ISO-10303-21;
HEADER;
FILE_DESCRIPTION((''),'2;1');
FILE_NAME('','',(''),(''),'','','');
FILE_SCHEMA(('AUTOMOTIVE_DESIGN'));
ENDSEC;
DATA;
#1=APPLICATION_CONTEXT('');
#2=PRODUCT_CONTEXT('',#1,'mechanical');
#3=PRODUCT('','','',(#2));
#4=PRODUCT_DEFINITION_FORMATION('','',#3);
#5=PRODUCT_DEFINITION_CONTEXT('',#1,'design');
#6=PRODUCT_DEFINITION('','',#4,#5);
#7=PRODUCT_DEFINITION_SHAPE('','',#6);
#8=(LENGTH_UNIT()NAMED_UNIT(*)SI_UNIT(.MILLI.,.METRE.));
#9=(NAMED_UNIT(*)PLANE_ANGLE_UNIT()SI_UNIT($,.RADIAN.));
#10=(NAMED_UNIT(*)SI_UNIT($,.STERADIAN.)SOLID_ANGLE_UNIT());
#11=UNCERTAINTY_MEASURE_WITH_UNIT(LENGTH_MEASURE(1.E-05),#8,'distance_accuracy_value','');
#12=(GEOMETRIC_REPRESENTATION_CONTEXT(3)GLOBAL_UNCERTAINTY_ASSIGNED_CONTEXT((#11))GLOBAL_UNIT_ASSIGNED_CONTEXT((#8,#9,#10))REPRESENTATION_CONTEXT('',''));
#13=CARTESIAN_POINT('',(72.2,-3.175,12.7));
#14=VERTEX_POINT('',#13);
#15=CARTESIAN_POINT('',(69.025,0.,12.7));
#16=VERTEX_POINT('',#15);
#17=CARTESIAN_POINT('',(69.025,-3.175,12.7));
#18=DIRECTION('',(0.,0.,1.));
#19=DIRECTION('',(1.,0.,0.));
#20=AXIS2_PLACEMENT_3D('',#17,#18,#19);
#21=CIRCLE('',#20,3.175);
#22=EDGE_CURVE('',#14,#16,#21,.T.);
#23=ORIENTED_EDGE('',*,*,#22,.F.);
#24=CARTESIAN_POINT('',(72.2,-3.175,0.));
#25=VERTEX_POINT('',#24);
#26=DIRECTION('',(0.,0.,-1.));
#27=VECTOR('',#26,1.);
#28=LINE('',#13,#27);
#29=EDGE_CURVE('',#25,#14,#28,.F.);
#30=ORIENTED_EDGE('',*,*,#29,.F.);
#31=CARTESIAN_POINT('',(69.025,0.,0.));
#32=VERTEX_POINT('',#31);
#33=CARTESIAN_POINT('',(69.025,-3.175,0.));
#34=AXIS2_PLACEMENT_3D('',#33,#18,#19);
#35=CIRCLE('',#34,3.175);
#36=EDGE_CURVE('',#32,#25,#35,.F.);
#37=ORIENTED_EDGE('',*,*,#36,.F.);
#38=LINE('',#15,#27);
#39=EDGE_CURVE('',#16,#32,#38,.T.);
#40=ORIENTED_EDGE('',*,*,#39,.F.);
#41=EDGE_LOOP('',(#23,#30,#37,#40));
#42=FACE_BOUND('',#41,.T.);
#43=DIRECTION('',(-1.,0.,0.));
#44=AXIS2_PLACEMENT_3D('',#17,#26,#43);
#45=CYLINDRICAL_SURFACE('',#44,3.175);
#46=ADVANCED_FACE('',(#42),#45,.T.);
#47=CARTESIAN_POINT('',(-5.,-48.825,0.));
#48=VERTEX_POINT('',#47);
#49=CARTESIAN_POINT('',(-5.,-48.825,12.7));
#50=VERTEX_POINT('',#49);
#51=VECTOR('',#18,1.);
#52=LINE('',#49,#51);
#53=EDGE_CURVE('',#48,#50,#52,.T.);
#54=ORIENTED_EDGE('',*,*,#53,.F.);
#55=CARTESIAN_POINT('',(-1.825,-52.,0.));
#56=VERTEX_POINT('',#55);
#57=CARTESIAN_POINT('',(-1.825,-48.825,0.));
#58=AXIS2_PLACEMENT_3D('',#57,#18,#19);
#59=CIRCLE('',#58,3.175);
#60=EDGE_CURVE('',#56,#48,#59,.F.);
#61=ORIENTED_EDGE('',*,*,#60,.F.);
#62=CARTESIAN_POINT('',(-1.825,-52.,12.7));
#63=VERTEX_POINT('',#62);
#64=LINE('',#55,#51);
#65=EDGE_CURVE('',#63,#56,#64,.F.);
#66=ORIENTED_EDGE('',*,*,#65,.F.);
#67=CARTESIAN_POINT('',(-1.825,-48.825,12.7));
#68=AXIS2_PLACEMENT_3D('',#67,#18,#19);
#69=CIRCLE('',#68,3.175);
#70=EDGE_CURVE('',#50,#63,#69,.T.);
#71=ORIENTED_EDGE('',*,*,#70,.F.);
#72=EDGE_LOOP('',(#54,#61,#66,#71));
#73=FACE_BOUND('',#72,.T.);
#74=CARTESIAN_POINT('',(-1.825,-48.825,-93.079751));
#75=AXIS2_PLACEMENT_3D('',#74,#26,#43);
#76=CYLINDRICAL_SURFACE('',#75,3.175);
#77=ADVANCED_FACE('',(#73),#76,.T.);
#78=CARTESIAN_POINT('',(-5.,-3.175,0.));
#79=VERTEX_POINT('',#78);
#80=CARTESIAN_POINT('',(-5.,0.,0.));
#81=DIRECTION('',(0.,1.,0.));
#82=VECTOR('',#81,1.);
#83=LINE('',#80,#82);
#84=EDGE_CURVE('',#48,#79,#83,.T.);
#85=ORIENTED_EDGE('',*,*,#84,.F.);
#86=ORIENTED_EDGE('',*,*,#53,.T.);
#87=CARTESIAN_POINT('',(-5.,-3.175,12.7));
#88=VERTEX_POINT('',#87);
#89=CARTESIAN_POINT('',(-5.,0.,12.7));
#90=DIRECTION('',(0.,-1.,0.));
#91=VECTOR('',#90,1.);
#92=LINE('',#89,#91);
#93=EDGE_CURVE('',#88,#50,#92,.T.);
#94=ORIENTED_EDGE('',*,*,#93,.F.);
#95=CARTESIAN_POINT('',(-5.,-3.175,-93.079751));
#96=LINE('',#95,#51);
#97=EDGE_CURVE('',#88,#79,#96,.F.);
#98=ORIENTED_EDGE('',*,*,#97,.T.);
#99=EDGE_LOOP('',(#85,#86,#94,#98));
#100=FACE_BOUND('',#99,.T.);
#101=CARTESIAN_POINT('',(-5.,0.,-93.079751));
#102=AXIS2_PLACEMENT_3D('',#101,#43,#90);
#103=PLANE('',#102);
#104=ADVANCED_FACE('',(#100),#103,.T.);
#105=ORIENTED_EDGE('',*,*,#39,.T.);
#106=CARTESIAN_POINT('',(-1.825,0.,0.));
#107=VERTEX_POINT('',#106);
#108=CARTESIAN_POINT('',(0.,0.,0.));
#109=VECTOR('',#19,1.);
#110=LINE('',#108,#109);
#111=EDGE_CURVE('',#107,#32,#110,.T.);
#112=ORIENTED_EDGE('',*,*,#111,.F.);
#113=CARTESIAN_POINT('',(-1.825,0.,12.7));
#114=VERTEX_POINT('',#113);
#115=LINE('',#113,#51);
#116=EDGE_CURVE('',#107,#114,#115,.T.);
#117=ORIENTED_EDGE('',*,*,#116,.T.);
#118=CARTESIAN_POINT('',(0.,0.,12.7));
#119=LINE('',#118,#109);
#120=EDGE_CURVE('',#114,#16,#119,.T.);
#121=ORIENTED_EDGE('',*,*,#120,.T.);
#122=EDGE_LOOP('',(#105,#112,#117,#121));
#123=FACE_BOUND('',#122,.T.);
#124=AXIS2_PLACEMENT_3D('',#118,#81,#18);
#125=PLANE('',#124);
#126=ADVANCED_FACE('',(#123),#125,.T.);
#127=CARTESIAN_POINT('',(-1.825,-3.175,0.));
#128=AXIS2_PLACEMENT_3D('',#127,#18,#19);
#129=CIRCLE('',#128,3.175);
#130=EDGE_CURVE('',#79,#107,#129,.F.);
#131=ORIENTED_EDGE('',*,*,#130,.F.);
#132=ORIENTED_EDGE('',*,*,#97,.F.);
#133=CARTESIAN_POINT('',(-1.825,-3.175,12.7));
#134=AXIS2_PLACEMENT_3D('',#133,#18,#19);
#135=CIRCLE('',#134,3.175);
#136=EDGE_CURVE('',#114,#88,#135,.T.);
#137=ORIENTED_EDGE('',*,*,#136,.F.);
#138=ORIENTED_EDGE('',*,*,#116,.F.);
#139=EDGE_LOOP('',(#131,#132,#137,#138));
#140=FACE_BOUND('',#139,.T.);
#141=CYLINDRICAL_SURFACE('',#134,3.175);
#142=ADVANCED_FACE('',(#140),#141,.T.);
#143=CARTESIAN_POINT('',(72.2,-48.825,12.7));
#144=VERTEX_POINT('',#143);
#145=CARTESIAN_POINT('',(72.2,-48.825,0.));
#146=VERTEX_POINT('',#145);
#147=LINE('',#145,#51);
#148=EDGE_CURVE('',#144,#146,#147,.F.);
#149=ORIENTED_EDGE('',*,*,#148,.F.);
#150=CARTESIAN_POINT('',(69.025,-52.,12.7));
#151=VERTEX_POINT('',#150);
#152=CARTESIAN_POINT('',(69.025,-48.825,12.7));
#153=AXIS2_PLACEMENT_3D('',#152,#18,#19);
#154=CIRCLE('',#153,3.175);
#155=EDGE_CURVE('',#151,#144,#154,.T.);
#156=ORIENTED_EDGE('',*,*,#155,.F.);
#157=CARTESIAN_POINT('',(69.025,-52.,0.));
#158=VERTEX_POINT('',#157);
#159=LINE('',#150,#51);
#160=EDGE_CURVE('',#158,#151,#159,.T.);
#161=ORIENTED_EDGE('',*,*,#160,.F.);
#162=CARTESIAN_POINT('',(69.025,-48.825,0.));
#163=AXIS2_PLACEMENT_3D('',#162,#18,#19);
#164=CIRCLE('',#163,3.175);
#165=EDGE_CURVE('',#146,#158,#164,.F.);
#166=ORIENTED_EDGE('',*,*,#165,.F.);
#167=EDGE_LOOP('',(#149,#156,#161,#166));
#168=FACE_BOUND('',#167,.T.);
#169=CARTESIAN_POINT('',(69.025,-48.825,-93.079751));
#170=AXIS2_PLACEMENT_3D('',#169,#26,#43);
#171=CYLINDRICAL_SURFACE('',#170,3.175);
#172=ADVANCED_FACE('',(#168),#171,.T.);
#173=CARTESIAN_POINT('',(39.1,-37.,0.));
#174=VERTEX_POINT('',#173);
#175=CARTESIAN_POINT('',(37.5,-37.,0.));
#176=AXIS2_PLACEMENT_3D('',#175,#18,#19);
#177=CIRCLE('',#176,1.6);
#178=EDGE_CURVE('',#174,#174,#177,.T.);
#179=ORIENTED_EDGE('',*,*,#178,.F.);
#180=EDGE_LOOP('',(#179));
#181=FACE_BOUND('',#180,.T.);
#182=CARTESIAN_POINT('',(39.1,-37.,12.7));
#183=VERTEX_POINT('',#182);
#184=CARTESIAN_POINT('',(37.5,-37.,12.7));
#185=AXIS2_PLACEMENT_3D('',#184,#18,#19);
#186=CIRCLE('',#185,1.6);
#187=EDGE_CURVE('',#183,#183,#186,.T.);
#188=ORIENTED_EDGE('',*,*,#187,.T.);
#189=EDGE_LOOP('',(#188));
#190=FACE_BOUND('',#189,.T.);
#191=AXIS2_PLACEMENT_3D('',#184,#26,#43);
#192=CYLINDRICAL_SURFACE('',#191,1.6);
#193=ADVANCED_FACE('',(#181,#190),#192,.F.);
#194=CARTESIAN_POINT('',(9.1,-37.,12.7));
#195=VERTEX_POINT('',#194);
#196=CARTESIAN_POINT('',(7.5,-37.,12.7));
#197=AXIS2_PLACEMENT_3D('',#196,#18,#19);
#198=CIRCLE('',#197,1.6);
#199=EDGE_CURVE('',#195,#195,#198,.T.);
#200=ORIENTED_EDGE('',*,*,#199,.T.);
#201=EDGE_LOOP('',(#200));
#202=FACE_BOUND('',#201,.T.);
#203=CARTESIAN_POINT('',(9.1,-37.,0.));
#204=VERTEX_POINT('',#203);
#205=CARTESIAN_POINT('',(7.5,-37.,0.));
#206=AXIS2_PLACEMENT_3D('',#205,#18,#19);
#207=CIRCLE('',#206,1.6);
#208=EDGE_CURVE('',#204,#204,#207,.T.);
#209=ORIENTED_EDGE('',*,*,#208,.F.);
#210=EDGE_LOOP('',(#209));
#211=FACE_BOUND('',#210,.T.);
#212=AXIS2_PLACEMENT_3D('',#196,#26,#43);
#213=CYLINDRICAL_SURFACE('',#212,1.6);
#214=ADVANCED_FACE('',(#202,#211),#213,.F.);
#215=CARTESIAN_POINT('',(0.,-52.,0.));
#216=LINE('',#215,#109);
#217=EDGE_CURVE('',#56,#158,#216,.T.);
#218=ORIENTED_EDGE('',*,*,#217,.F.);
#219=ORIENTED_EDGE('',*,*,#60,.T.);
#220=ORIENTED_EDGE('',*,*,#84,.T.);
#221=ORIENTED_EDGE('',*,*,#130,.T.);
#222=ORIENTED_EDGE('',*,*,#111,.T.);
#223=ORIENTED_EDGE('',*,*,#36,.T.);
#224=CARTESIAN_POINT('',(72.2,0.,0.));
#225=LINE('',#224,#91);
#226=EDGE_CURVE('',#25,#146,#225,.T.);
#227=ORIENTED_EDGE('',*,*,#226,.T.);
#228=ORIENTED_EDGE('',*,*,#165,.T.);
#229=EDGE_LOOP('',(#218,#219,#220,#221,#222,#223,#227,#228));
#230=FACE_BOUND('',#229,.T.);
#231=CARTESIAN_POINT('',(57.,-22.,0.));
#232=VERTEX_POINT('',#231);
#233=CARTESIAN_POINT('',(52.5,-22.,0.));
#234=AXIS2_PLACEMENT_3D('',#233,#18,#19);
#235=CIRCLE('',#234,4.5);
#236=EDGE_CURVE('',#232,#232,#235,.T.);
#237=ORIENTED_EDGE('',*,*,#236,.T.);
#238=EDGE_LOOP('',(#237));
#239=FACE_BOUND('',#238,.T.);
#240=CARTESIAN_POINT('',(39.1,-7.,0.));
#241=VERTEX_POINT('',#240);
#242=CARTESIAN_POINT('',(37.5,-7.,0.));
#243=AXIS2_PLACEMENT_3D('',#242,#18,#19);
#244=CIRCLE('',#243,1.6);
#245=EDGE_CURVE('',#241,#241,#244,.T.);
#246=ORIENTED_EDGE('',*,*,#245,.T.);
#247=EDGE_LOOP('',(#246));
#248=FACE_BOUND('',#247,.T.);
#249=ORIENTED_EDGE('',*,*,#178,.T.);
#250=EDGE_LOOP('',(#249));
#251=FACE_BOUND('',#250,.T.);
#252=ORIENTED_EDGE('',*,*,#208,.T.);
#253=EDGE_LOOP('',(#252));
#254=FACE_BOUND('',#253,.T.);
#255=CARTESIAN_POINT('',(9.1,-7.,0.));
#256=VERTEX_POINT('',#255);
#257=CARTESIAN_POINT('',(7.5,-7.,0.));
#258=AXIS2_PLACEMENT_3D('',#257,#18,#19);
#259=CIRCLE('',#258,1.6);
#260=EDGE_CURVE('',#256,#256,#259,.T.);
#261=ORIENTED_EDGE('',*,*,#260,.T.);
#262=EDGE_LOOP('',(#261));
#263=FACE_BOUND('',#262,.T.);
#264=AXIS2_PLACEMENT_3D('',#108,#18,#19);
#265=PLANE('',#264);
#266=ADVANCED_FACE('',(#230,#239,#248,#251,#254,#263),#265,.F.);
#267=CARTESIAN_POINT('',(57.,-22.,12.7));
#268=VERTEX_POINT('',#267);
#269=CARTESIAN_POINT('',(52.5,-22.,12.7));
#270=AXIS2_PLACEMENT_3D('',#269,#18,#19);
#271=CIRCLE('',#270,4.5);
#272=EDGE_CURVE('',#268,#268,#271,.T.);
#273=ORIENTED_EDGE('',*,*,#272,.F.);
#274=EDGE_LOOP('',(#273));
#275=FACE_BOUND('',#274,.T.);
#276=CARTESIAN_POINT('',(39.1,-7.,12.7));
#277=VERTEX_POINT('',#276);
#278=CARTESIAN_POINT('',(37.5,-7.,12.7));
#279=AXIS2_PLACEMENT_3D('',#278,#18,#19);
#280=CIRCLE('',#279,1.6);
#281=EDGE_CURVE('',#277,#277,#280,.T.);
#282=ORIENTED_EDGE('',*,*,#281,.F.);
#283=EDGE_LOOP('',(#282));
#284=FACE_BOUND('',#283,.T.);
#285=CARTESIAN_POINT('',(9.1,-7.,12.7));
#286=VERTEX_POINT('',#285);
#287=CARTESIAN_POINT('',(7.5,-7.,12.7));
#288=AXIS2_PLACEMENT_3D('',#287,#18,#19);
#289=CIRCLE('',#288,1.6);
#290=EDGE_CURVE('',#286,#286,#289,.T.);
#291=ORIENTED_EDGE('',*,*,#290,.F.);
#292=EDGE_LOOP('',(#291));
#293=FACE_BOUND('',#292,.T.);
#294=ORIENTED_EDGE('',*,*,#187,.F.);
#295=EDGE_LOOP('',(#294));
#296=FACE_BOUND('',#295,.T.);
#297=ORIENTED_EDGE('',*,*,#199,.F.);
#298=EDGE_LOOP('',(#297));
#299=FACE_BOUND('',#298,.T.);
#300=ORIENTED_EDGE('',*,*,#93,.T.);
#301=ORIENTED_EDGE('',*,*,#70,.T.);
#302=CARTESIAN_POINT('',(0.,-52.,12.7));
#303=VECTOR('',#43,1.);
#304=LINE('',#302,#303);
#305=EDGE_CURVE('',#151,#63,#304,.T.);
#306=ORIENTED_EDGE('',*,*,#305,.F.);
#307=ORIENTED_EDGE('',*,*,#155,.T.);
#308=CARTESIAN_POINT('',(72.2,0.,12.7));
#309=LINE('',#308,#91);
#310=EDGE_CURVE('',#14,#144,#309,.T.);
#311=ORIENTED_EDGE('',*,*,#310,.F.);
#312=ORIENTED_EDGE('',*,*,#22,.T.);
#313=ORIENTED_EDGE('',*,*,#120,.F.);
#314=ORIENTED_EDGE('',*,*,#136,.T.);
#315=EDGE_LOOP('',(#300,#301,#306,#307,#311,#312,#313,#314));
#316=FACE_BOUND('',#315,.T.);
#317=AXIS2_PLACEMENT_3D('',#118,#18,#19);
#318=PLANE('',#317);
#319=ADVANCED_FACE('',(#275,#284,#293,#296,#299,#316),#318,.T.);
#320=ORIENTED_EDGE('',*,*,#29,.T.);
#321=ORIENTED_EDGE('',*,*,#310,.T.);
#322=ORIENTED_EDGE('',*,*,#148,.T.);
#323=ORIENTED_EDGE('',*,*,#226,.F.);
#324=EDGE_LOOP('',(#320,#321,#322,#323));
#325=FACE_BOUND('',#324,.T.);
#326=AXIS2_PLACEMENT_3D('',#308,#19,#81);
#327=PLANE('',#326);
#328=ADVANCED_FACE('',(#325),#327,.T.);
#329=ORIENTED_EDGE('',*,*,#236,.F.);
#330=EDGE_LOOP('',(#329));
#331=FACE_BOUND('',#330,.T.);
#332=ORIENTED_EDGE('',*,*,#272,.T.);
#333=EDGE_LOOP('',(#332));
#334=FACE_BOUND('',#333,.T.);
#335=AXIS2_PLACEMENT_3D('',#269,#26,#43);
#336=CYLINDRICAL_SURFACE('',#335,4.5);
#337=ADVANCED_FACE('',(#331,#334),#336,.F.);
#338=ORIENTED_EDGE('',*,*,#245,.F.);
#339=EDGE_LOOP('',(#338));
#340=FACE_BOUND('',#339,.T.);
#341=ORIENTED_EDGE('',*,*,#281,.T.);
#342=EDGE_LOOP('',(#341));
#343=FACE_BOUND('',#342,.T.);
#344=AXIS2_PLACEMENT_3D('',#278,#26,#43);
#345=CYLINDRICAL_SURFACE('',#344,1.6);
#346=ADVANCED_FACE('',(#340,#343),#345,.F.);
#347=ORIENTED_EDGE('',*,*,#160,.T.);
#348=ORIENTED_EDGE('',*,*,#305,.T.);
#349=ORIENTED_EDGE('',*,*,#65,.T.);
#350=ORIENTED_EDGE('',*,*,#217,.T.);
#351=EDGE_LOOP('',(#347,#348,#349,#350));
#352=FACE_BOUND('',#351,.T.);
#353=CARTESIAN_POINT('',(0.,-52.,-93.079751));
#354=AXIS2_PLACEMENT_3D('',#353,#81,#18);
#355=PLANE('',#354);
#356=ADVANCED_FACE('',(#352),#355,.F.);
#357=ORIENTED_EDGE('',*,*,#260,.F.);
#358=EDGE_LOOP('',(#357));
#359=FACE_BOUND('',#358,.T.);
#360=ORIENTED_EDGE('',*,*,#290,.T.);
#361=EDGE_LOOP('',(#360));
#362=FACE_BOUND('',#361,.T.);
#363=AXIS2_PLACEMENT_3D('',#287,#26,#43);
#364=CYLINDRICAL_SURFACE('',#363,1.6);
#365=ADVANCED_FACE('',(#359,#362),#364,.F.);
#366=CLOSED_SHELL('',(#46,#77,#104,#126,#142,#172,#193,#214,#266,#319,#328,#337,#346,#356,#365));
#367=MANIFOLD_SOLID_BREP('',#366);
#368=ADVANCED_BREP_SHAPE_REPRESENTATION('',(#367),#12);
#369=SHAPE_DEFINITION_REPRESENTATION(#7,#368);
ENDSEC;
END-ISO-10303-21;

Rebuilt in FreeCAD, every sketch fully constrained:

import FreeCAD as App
import Part
import Sketcher

V = App.Vector
Q = App.Units.Quantity


def edges_at(feature, points):
    """Names of the edges that pass closest to the given points."""
    edges = feature.Shape.Edges
    near = lambda p: min(range(len(edges)), key=lambda i: edges[i].distToShape(Part.Vertex(*p))[0])
    return sorted({f"Edge{near(p) + 1}" for p in points})

doc = App.newDocument("Part")
body = doc.addObject("PartDesign::Body", "Body")

# Sketch on XY plane
sketch1 = body.newObject("Sketcher::SketchObject", "Sketch")
sketch1.AttachmentSupport = (doc.getObject("XY_Plane"), [""])
sketch1.MapMode = "FlatFace"
sketch1.addGeometry(Part.LineSegment(V(0, 0, 0), V(0, -44, 0)), False)
sketch1.addGeometry(Part.LineSegment(V(0, -44, 0), V(72.2, -44, 0)), False)
sketch1.addGeometry(Part.LineSegment(V(72.2, -44, 0), V(72.2, 0, 0)), False)
sketch1.addGeometry(Part.LineSegment(V(72.2, 0, 0), V(0, 0, 0)), False)
sketch1.addConstraint(Sketcher.Constraint("Coincident", 0, 2, 1, 1))
sketch1.addConstraint(Sketcher.Constraint("Coincident", 1, 2, 2, 1))
sketch1.addConstraint(Sketcher.Constraint("Coincident", 2, 2, 3, 1))
sketch1.addConstraint(Sketcher.Constraint("Coincident", 3, 2, 0, 1))
sketch1.addConstraint(Sketcher.Constraint("Vertical", 0))
sketch1.addConstraint(Sketcher.Constraint("Horizontal", 1))
sketch1.addConstraint(Sketcher.Constraint("Vertical", 2))
sketch1.addConstraint(Sketcher.Constraint("Horizontal", 3))
sketch1.addConstraint(Sketcher.Constraint("Coincident", 3, 2, -1, 1))
sketch1.addConstraint(Sketcher.Constraint("DistanceY", 0, 2, 0, 1, Q("44 mm")))
sketch1.addConstraint(Sketcher.Constraint("DistanceX", 1, 1, 1, 2, Q("72.2 mm")))
pad1 = body.newObject("PartDesign::Pad", "Pad")
pad1.Profile = sketch1
pad1.Length = 12.7

# Sketch on XY plane
sketch2 = body.newObject("Sketcher::SketchObject", "Sketch001")
sketch2.AttachmentSupport = (doc.getObject("XY_Plane"), [""])
sketch2.MapMode = "FlatFace"
sketch2.AttachmentOffset = App.Placement(V(0, 0, 12.7), App.Rotation())
sketch2.addGeometry(Part.LineSegment(V(72.2, -44, 0), V(0, -44, 0)), False)
sketch2.addGeometry(Part.LineSegment(V(0, -44, 0), V(0, 0, 0)), False)
sketch2.addGeometry(Part.LineSegment(V(0, 0, 0), V(-5, 0, 0)), False)
sketch2.addGeometry(Part.LineSegment(V(-5, 0, 0), V(-5, -52, 0)), False)
sketch2.addGeometry(Part.LineSegment(V(-5, -52, 0), V(72.2, -52, 0)), False)
sketch2.addGeometry(Part.LineSegment(V(72.2, -52, 0), V(72.2, -44, 0)), False)
sketch2.addConstraint(Sketcher.Constraint("Coincident", 0, 2, 1, 1))
sketch2.addConstraint(Sketcher.Constraint("Coincident", 1, 2, 2, 1))
sketch2.addConstraint(Sketcher.Constraint("Coincident", 2, 2, 3, 1))
sketch2.addConstraint(Sketcher.Constraint("Coincident", 3, 2, 4, 1))
sketch2.addConstraint(Sketcher.Constraint("Coincident", 4, 2, 5, 1))
sketch2.addConstraint(Sketcher.Constraint("Coincident", 5, 2, 0, 1))
sketch2.addConstraint(Sketcher.Constraint("Horizontal", 0))
sketch2.addConstraint(Sketcher.Constraint("Vertical", 1))
sketch2.addConstraint(Sketcher.Constraint("Horizontal", 2))
sketch2.addConstraint(Sketcher.Constraint("Vertical", 3))
sketch2.addConstraint(Sketcher.Constraint("Horizontal", 4))
sketch2.addConstraint(Sketcher.Constraint("Vertical", 5))
sketch2.addConstraint(Sketcher.Constraint("Coincident", 1, 2, -1, 1))
sketch2.addConstraint(Sketcher.Constraint("DistanceX", 2, 2, 2, 1, Q("5 mm")))
sketch2.addConstraint(Sketcher.Constraint("DistanceY", 1, 1, 1, 2, Q("44 mm")))
sketch2.addConstraint(Sketcher.Constraint("DistanceY", 3, 2, 3, 1, Q("52 mm")))
sketch2.addConstraint(Sketcher.Constraint("DistanceX", 0, 2, 0, 1, Q("72.2 mm")))
pad2 = body.newObject("PartDesign::Pad", "Pad001")
pad2.Profile = sketch2
pad2.Length = 12.7
pad2.Reversed = True

# Sketch on XY plane
sketch3 = body.newObject("Sketcher::SketchObject", "Sketch002")
sketch3.AttachmentSupport = (doc.getObject("XY_Plane"), [""])
sketch3.MapMode = "FlatFace"
sketch3.addGeometry(Part.Circle(V(52.5, -22, 0), V(0, 0, 1), 4.5), False)
sketch3.addGeometry(Part.Circle(V(7.5, -37, 0), V(0, 0, 1), 1.6), False)
sketch3.addGeometry(Part.Circle(V(7.5, -7, 0), V(0, 0, 1), 1.6), False)
sketch3.addGeometry(Part.Circle(V(37.5, -7, 0), V(0, 0, 1), 1.6), False)
sketch3.addGeometry(Part.Circle(V(37.5, -37, 0), V(0, 0, 1), 1.6), False)
sketch3.addConstraint(Sketcher.Constraint("Equal", 1, 2))
sketch3.addConstraint(Sketcher.Constraint("Equal", 2, 3))
sketch3.addConstraint(Sketcher.Constraint("Equal", 3, 4))
sketch3.addConstraint(Sketcher.Constraint("Horizontal", 2, 3, 3, 3))
sketch3.addConstraint(Sketcher.Constraint("Horizontal", 1, 3, 4, 3))
sketch3.addConstraint(Sketcher.Constraint("Vertical", 1, 3, 2, 3))
sketch3.addConstraint(Sketcher.Constraint("Vertical", 3, 3, 4, 3))
sketch3.addConstraint(Sketcher.Constraint("Diameter", 0, Q("9 mm")))
sketch3.addConstraint(Sketcher.Constraint("Diameter", 1, Q("3.2 mm")))
sketch3.addConstraint(Sketcher.Constraint("DistanceY", 0, 3, -1, 1, Q("22 mm")))
sketch3.addConstraint(Sketcher.Constraint("DistanceY", 1, 3, -1, 1, Q("37 mm")))
sketch3.addConstraint(Sketcher.Constraint("DistanceY", 2, 3, -1, 1, Q("7 mm")))
sketch3.addConstraint(Sketcher.Constraint("DistanceX", 1, 3, 0, 3, Q("45 mm")))
sketch3.addConstraint(Sketcher.Constraint("DistanceX", 3, 3, 0, 3, Q("15 mm")))
sketch3.addConstraint(Sketcher.Constraint("DistanceX", -1, 1, 0, 3, Q("52.5 mm")))
pocket1 = body.newObject("PartDesign::Pocket", "Pocket")
pocket1.Profile = sketch3
pocket1.Type = "ThroughAll"
pocket1.Reversed = True
doc.recompute()

fillet = body.newObject("PartDesign::Fillet", "Fillet")
fillet.Base = (pocket1, edges_at(pocket1, [
    (72.2, 0, 6.35),
    (-5, 0, 6.35),
    (72.2, -52, 6.35),
    (-5, -52, 6.35),
]))
fillet.Radius = 3.175

doc.recompute()
